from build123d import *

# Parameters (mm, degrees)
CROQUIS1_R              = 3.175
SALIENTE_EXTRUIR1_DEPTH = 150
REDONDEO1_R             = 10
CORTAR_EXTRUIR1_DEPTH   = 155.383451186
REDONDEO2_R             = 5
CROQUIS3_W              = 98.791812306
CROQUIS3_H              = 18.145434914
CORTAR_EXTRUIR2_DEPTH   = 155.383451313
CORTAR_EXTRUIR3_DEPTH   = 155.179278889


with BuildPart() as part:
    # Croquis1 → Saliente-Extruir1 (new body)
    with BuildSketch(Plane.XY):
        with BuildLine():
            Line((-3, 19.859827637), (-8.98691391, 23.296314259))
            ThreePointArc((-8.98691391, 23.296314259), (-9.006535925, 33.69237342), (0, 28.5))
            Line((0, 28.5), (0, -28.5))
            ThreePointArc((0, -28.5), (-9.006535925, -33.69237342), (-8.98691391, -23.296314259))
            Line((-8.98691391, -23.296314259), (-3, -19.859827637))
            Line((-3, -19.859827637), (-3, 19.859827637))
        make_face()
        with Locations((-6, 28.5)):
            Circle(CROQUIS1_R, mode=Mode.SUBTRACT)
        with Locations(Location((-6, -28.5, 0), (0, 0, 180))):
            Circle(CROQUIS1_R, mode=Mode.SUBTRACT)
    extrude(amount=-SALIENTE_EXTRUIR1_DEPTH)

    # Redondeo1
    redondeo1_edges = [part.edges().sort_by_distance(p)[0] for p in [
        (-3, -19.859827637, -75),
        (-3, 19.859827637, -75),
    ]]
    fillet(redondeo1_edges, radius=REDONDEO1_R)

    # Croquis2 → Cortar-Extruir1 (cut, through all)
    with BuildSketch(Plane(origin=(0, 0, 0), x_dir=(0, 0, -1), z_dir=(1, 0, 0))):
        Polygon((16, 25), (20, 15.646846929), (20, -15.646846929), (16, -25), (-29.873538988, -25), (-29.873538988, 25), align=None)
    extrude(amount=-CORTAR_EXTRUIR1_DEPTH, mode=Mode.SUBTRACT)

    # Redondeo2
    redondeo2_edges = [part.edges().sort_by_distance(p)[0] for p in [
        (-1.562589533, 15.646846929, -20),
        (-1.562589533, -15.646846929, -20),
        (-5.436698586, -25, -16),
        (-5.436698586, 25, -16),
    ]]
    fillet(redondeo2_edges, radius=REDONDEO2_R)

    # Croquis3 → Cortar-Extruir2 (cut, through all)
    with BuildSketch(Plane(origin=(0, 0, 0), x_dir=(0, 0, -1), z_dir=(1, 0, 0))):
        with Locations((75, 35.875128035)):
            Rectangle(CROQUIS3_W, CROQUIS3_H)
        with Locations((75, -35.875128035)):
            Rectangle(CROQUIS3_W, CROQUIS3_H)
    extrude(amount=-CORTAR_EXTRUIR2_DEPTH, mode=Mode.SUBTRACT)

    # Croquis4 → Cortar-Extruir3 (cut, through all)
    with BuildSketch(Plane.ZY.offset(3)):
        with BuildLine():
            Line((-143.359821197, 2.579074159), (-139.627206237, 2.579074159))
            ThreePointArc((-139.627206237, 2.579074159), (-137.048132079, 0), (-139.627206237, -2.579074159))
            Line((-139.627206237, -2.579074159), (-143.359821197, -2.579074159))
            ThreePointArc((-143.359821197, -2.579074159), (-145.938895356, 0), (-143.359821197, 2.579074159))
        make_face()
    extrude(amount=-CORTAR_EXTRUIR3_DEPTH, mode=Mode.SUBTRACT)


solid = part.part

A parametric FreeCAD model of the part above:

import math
import FreeCAD as App
import Part
import Sketcher

V = App.Vector
Q = App.Units.Quantity


def edges_at(feature, points):
    """Names of the edges that pass closest to the given points."""
    edges = feature.Shape.Edges
    near = lambda p: min(range(len(edges)), key=lambda i: edges[i].distToShape(Part.Vertex(*p))[0])
    return sorted({f"Edge{near(p) + 1}" for p in points})


def add_polygon(sketch, points):
    """Adds a closed chain of lines whose ends are joined by coincident constraints."""
    first, n = sketch.GeometryCount, len(points)
    for a, b in zip(points, points[1:] + points[:1]):
        sketch.addGeometry(Part.LineSegment(App.Vector(*a, 0), App.Vector(*b, 0)), False)
    for i in range(n):
        sketch.addConstraint(Sketcher.Constraint("Coincident", first + i, 2, first + (i + 1) % n, 1))

doc = App.newDocument("Part")
body = doc.addObject("PartDesign::Body", "Body")

# Sketch on XY plane
sketch1 = body.newObject("Sketcher::SketchObject", "Sketch")
sketch1.AttachmentSupport = (doc.getObject("XY_Plane"), [""])
sketch1.MapMode = "FlatFace"
sketch1.addGeometry(Part.LineSegment(V(-9, 23.3, 0), V(-3, 19.9, 0)), False)
sketch1.addGeometry(Part.LineSegment(V(-3, 19.9, 0), V(-3, -19.9, 0)), False)
sketch1.addGeometry(Part.LineSegment(V(-3, -19.9, 0), V(-9, -23.3, 0)), False)
sketch1.addGeometry(Part.ArcOfCircle(Part.Circle(V(-6, -28.5, 0), V(0, 0, 1), 6), math.radians(120), math.radians(360)), False)
sketch1.addGeometry(Part.LineSegment(V(0, -28.5, 0), V(0, 28.5, 0)), False)
sketch1.addGeometry(Part.ArcOfCircle(Part.Circle(V(-6, 28.5, 0), V(0, 0, 1), 6), math.radians(0), math.radians(240)), False)
sketch1.addGeometry(Part.Circle(V(-6, -28.5, 0), V(0, 0, 1), 3.2), False)
sketch1.addGeometry(Part.Circle(V(-6, 28.5, 0), V(0, 0, 1), 3.2), False)
sketch1.addConstraint(Sketcher.Constraint("Coincident", 0, 2, 1, 1))
sketch1.addConstraint(Sketcher.Constraint("Coincident", 1, 2, 2, 1))
sketch1.addConstraint(Sketcher.Constraint("Tangent", 2, 2, 3, 1))
sketch1.addConstraint(Sketcher.Constraint("Tangent", 3, 2, 4, 1))
sketch1.addConstraint(Sketcher.Constraint("Tangent", 4, 2, 5, 1))
sketch1.addConstraint(Sketcher.Constraint("Tangent", 5, 2, 0, 1))
sketch1.addConstraint(Sketcher.Constraint("Vertical", 1))
sketch1.addConstraint(Sketcher.Constraint("Vertical", 4))
sketch1.addConstraint(Sketcher.Constraint("Coincident", 6, 3, 3, 3))
sketch1.addConstraint(Sketcher.Constraint("Coincident", 7, 3, 5, 3))
sketch1.addConstraint(Sketcher.Constraint("Equal", 3, 5))
sketch1.addConstraint(Sketcher.Constraint("Equal", 6, 7))
sketch1.addConstraint(Sketcher.Constraint("Symmetric", 3, 2, 4, 2, -1, 1))
sketch1.addConstraint(Sketcher.Constraint("Vertical", 2, 2, 5, 2))
sketch1.addConstraint(Sketcher.Constraint("Radius", 3, Q("6 mm")))
sketch1.addConstraint(Sketcher.Constraint("Diameter", 6, Q("6.35 mm")))
sketch1.addConstraint(Sketcher.Constraint("DistanceY", 4, 1, 4, 2, Q("57 mm")))
sketch1.addConstraint(Sketcher.Constraint("DistanceX", 0, 2, -1, 1, Q("3 mm")))
sketch1.addConstraint(Sketcher.Constraint("DistanceY", 1, 2, 1, 1, Q("39.719655 mm")))
pad1 = body.newObject("PartDesign::Pad", "Pad")
pad1.Profile = sketch1
pad1.Length = 150
pad1.Reversed = True
doc.recompute()

fillet = body.newObject("PartDesign::Fillet", "Fillet")
fillet.Base = (pad1, edges_at(pad1, [(-3, -19.86, -75), (-3, 19.86, -75)]))
fillet.Radius = 10

# Sketch on YZ plane
sketch2 = body.newObject("Sketcher::SketchObject", "Sketch001")
sketch2.AttachmentSupport = (doc.getObject("YZ_Plane"), [""])
sketch2.MapMode = "FlatFace"
add_polygon(sketch2, [(16, -20), (25, -16), (25, 30), (-25, 30), (-25, -16), (-16, -20)])  # lines 0-5
sketch2.addConstraint(Sketcher.Constraint("Vertical", 1))
sketch2.addConstraint(Sketcher.Constraint("Horizontal", 2))
sketch2.addConstraint(Sketcher.Constraint("Vertical", 3))
sketch2.addConstraint(Sketcher.Constraint("Horizontal", 5))
sketch2.addConstraint(Sketcher.Constraint("Symmetric", 0, 2, 3, 2, -2))
sketch2.addConstraint(Sketcher.Constraint("Equal", 0, 4))
sketch2.addConstraint(Sketcher.Constraint("DistanceX", 2, 2, 2, 1, Q("50 mm")))
sketch2.addConstraint(Sketcher.Constraint("DistanceY", 0, 2, -1, 1, Q("16 mm")))
sketch2.addConstraint(Sketcher.Constraint("DistanceY", 4, 2, -1, 1, Q("20 mm")))
sketch2.addConstraint(Sketcher.Constraint("DistanceY", 1, 1, 1, 2, Q("45.873539 mm")))
sketch2.addConstraint(Sketcher.Constraint("DistanceX", 5, 1, 5, 2, Q("31.293694 mm")))
pocket1 = body.newObject("PartDesign::Pocket", "Pocket")
pocket1.Profile = sketch2
pocket1.Type = "ThroughAll"
doc.recompute()

fillet2 = body.newObject("PartDesign::Fillet", "Fillet001")
fillet2.Base = (pocket1, edges_at(pocket1, [
    (-1.563, 15.647, -20),
    (-1.563, -15.647, -20),
    (-5.437, -25, -16),
    (-5.437, 25, -16),
]))
fillet2.Radius = 5

# Sketch on YZ plane
sketch3 = body.newObject("Sketcher::SketchObject", "Sketch002")
sketch3.AttachmentSupport = (doc.getObject("YZ_Plane"), [""])
sketch3.MapMode = "FlatFace"
add_polygon(sketch3, [(45, -26), (27, -26), (27, -124), (45, -124)])  # lines 0-3
add_polygon(sketch3, [(-27, -26), (-45, -26), (-45, -124), (-27, -124)])  # lines 4-7
sketch3.addConstraint(Sketcher.Constraint("Horizontal", 0))
sketch3.addConstraint(Sketcher.Constraint("Vertical", 1))
sketch3.addConstraint(Sketcher.Constraint("Horizontal", 2))
sketch3.addConstraint(Sketcher.Constraint("Vertical", 3))
sketch3.addConstraint(Sketcher.Constraint("Horizontal", 4))
sketch3.addConstraint(Sketcher.Constraint("Vertical", 5))
sketch3.addConstraint(Sketcher.Constraint("Horizontal", 6))
sketch3.addConstraint(Sketcher.Constraint("Vertical", 7))
sketch3.addConstraint(Sketcher.Constraint("Symmetric", 3, 2, 4, 2, -2))
sketch3.addConstraint(Sketcher.Constraint("Symmetric", 1, 2, 6, 2, -2))
sketch3.addConstraint(Sketcher.Constraint("DistanceX", 0, 2, 0, 1, Q("18.145435 mm")))
sketch3.addConstraint(Sketcher.Constraint("DistanceY", 1, 2, 1, 1, Q("98.791812 mm")))
sketch3.addConstraint(Sketcher.Constraint("DistanceX", -1, 1, 0, 2, Q("26.802411 mm")))
sketch3.addConstraint(Sketcher.Constraint("DistanceY", 0, 2, -1, 1, Q("25.604094 mm")))
pocket2 = body.newObject("PartDesign::Pocket", "Pocket001")
pocket2.Profile = sketch3
pocket2.Type = "ThroughAll"

# Sketch on YZ plane
sketch4 = body.newObject("Sketcher::SketchObject", "Sketch003")
sketch4.AttachmentSupport = (doc.getObject("YZ_Plane"), [""])
sketch4.MapMode = "FlatFace"
sketch4.AttachmentOffset = App.Placement(V(0, 0, -3), App.Rotation())
sketch4.addGeometry(Part.LineSegment(V(2.6, -139.6, 0), V(2.6, -143.4, 0)), False)
sketch4.addGeometry(Part.ArcOfCircle(Part.Circle(V(0, -143.4, 0), V(0, 0, 1), 2.6), math.radians(180), math.radians(360)), False)
sketch4.addGeometry(Part.LineSegment(V(-2.6, -143.4, 0), V(-2.6, -139.6, 0)), False)
sketch4.addGeometry(Part.ArcOfCircle(Part.Circle(V(0, -139.6, 0), V(0, 0, 1), 2.6), math.radians(0), math.radians(180)), False)
sketch4.addConstraint(Sketcher.Constraint("Tangent", 0, 2, 1, 2))
sketch4.addConstraint(Sketcher.Constraint("Tangent", 1, 1, 2, 1))
sketch4.addConstraint(Sketcher.Constraint("Tangent", 2, 2, 3, 2))
sketch4.addConstraint(Sketcher.Constraint("Tangent", 3, 1, 0, 1))
sketch4.addConstraint(Sketcher.Constraint("Vertical", 0))
sketch4.addConstraint(Sketcher.Constraint("Vertical", 2))
sketch4.addConstraint(Sketcher.Constraint("PointOnObject", 1, 3, -2))
sketch4.addConstraint(Sketcher.Constraint("Radius", 1, Q("2.579074 mm")))
sketch4.addConstraint(Sketcher.Constraint("DistanceY", 0, 2, 0, 1, Q("3.732615 mm")))
sketch4.addConstraint(Sketcher.Constraint("DistanceY", 1, 3, -1, 1, Q("143.359821 mm")))
pocket3 = body.newObject("PartDesign::Pocket", "Pocket002")
pocket3.Profile = sketch4
pocket3.Type = "ThroughAll"
pocket3.Reversed = True

doc.recompute()
